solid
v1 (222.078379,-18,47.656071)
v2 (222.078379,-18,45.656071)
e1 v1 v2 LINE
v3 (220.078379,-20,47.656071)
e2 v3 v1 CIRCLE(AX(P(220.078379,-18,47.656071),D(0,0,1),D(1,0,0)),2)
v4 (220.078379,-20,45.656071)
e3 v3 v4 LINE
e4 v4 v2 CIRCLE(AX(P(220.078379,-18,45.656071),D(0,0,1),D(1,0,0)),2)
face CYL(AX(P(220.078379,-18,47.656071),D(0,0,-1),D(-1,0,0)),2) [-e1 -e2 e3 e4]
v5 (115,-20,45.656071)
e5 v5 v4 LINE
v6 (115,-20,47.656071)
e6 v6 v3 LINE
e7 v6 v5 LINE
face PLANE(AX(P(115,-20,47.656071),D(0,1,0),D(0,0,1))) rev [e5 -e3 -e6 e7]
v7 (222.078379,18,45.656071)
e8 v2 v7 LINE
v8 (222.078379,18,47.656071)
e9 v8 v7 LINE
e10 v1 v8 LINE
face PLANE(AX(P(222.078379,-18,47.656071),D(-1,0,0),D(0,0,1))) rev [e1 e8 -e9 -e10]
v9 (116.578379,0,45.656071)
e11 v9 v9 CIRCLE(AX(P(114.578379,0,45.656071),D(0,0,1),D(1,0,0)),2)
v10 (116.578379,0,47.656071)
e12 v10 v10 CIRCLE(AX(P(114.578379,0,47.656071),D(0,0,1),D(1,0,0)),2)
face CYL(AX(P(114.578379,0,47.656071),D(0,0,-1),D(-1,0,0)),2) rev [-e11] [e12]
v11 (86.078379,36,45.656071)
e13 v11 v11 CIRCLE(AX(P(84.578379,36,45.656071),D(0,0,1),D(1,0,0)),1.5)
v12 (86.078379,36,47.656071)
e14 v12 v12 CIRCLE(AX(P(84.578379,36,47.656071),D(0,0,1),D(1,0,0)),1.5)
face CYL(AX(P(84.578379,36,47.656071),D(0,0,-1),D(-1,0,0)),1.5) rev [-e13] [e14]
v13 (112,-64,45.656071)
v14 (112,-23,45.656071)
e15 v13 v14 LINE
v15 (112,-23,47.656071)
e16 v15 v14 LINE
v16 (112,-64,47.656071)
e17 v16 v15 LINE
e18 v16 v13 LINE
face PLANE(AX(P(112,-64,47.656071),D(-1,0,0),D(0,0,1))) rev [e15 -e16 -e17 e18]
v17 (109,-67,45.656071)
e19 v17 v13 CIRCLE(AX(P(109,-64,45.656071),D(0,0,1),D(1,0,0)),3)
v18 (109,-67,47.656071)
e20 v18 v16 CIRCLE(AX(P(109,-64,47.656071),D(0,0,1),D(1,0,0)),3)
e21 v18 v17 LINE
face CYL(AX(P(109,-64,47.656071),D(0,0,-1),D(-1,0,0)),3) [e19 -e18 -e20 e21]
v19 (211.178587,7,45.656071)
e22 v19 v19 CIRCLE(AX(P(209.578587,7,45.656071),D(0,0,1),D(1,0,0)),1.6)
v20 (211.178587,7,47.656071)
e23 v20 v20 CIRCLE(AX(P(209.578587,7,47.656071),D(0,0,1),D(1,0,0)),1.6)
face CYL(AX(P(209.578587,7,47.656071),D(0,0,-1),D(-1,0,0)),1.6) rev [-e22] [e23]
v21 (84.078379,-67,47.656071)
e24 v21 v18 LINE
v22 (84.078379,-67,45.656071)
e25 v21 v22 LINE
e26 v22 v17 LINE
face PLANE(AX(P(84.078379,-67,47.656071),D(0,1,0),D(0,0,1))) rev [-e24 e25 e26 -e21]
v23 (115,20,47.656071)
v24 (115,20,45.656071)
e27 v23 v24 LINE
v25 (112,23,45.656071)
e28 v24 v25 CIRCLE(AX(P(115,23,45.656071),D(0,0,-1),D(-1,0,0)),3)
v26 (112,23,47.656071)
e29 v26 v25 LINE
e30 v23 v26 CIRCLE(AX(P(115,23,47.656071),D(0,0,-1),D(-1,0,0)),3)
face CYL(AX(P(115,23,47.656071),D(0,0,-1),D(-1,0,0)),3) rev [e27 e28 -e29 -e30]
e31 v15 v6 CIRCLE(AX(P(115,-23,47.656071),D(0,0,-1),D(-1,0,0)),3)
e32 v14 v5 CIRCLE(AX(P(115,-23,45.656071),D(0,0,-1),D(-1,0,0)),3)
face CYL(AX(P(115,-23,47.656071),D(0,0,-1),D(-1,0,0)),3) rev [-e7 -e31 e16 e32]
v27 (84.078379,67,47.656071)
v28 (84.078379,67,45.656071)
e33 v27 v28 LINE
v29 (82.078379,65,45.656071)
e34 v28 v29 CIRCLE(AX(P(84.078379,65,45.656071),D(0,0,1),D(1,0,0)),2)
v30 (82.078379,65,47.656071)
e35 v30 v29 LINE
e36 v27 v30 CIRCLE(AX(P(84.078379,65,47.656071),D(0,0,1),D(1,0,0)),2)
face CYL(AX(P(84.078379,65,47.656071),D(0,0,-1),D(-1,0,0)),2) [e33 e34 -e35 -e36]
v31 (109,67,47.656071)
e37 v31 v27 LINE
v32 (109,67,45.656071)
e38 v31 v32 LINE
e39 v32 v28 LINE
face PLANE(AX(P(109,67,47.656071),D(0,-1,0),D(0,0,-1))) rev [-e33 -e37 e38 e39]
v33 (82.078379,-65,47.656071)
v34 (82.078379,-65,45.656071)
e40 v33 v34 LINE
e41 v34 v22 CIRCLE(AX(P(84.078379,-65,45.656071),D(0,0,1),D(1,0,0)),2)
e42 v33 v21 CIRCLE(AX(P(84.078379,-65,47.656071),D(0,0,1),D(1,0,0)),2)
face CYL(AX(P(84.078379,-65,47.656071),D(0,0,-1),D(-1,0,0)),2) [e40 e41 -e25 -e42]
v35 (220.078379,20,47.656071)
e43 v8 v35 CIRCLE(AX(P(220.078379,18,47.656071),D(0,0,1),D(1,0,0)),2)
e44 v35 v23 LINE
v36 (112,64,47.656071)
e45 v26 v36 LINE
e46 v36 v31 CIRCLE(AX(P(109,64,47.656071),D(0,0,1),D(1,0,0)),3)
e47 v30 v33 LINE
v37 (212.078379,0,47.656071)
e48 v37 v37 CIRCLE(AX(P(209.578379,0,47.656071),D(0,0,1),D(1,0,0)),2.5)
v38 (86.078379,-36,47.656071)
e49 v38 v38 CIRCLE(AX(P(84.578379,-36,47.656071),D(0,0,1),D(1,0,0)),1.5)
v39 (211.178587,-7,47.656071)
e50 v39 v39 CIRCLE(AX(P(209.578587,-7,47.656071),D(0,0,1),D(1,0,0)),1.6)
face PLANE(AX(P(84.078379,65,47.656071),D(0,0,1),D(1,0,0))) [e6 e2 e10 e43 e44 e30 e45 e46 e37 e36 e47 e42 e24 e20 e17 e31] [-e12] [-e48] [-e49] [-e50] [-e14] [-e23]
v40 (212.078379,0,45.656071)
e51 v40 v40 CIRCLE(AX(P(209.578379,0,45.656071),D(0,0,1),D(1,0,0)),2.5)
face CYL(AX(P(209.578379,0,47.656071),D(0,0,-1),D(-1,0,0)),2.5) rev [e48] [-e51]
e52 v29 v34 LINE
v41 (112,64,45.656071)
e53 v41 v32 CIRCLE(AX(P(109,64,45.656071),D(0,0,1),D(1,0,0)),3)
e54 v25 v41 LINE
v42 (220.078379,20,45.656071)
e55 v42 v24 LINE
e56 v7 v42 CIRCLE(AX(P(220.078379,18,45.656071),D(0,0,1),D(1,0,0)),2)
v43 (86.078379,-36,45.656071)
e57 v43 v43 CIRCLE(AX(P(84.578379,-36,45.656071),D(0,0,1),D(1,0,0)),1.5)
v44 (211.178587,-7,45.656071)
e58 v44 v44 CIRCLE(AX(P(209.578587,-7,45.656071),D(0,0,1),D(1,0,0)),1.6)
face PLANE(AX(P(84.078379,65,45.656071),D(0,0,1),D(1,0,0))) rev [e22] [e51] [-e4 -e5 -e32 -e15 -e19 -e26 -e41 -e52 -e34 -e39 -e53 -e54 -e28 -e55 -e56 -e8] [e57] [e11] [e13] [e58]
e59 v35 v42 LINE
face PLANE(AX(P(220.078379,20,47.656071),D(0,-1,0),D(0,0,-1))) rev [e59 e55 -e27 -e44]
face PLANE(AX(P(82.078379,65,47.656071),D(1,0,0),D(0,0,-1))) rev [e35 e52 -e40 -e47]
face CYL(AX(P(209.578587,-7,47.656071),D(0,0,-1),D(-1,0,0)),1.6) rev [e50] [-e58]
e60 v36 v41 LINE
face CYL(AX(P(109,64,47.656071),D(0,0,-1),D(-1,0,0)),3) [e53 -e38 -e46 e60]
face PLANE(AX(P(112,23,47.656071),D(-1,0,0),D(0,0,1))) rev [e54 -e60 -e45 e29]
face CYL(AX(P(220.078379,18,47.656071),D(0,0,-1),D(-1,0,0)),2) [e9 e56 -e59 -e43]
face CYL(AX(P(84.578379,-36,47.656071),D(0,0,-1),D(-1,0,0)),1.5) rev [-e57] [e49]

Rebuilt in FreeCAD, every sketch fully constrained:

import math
import FreeCAD as App
import Part
import Sketcher
from FreeCAD import Vector

doc = App.newDocument("Part")
body = doc.addObject("PartDesign::Body", "Body")

sketch1 = body.newObject("Sketcher::SketchObject", "Sketch")
sketch1.AttachmentSupport = (doc.getObject("XY_Plane"), [""])
sketch1.MapMode = "FlatFace"
sketch1.AttachmentOffset = App.Placement(Vector(0, 0, 45.656071), App.Rotation())
sketch1.addGeometry(Part.LineSegment(Vector(82.078379, 65, 0), Vector(82.078379, -65, 0)), False)
sketch1.addGeometry(Part.ArcOfCircle(Part.Circle(Vector(84.078379, -65, 0), Vector(0, 0, 1), 2), math.radians(-180), math.radians(-90)), False)
sketch1.addGeometry(Part.LineSegment(Vector(84.078379, -67, 0), Vector(109, -67, 0)), False)
sketch1.addGeometry(Part.ArcOfCircle(Part.Circle(Vector(109, -64, 0), Vector(0, 0, 1), 3), math.radians(-90), math.radians(0)), False)
sketch1.addGeometry(Part.LineSegment(Vector(112, -64, 0), Vector(112, -23, 0)), False)
sketch1.addGeometry(Part.ArcOfCircle(Part.Circle(Vector(115, -23, 0), Vector(0, 0, 1), 3), math.radians(90), math.radians(180)), False)
sketch1.addGeometry(Part.LineSegment(Vector(115, -20, 0), Vector(220.078379, -20, 0)), False)
sketch1.addGeometry(Part.ArcOfCircle(Part.Circle(Vector(220.078379, -18, 0), Vector(0, 0, 1), 2), math.radians(-90), math.radians(0)), False)
sketch1.addGeometry(Part.LineSegment(Vector(222.078379, -18, 0), Vector(222.078379, 18, 0)), False)
sketch1.addGeometry(Part.ArcOfCircle(Part.Circle(Vector(220.078379, 18, 0), Vector(0, 0, 1), 2), math.radians(0), math.radians(90)), False)
sketch1.addGeometry(Part.LineSegment(Vector(220.078379, 20, 0), Vector(115, 20, 0)), False)
sketch1.addGeometry(Part.ArcOfCircle(Part.Circle(Vector(115, 23, 0), Vector(0, 0, 1), 3), math.radians(180), math.radians(270)), False)
sketch1.addGeometry(Part.LineSegment(Vector(112, 23, 0), Vector(112, 64, 0)), False)
sketch1.addGeometry(Part.ArcOfCircle(Part.Circle(Vector(109, 64, 0), Vector(0, 0, 1), 3), math.radians(0), math.radians(90)), False)
sketch1.addGeometry(Part.LineSegment(Vector(109, 67, 0), Vector(84.078379, 67, 0)), False)
sketch1.addGeometry(Part.ArcOfCircle(Part.Circle(Vector(84.078379, 65, 0), Vector(0, 0, 1), 2), math.radians(90), math.radians(180)), False)
sketch1.addConstraint(Sketcher.Constraint("Tangent", 0, 2, 1, 1))
sketch1.addConstraint(Sketcher.Constraint("Tangent", 1, 2, 2, 1))
sketch1.addConstraint(Sketcher.Constraint("Tangent", 2, 2, 3, 1))
sketch1.addConstraint(Sketcher.Constraint("Tangent", 3, 2, 4, 1))
sketch1.addConstraint(Sketcher.Constraint("Tangent", 4, 2, 5, 2))
sketch1.addConstraint(Sketcher.Constraint("Tangent", 5, 1, 6, 1))
sketch1.addConstraint(Sketcher.Constraint("Tangent", 6, 2, 7, 1))
sketch1.addConstraint(Sketcher.Constraint("Tangent", 7, 2, 8, 1))
sketch1.addConstraint(Sketcher.Constraint("Tangent", 8, 2, 9, 1))
sketch1.addConstraint(Sketcher.Constraint("Tangent", 9, 2, 10, 1))
sketch1.addConstraint(Sketcher.Constraint("Tangent", 10, 2, 11, 2))
sketch1.addConstraint(Sketcher.Constraint("Tangent", 11, 1, 12, 1))
sketch1.addConstraint(Sketcher.Constraint("Tangent", 12, 2, 13, 1))
sketch1.addConstraint(Sketcher.Constraint("Tangent", 13, 2, 14, 1))
sketch1.addConstraint(Sketcher.Constraint("Tangent", 14, 2, 15, 1))
sketch1.addConstraint(Sketcher.Constraint("Tangent", 15, 2, 0, 1))
sketch1.addConstraint(Sketcher.Constraint("Vertical", 0))
sketch1.addConstraint(Sketcher.Constraint("Horizontal", 2))
sketch1.addConstraint(Sketcher.Constraint("Vertical", 4))
sketch1.addConstraint(Sketcher.Constraint("Horizontal", 6))
sketch1.addConstraint(Sketcher.Constraint("Vertical", 8))
sketch1.addConstraint(Sketcher.Constraint("Horizontal", 10))
sketch1.addConstraint(Sketcher.Constraint("Vertical", 12))
sketch1.addConstraint(Sketcher.Constraint("Horizontal", 14))
sketch1.addConstraint(Sketcher.Constraint("Equal", 3, 5))
sketch1.addConstraint(Sketcher.Constraint("Equal", 1, 7))
sketch1.addConstraint(Sketcher.Constraint("Equal", 7, 9))
sketch1.addConstraint(Sketcher.Constraint("Equal", 5, 11))
sketch1.addConstraint(Sketcher.Constraint("Equal", 11, 13))
sketch1.addConstraint(Sketcher.Constraint("Equal", 9, 15))
sketch1.addConstraint(Sketcher.Constraint("Symmetric", 5, 3, 11, 3, -1))
sketch1.addConstraint(Sketcher.Constraint("Equal", 4, 12))
sketch1.addConstraint(Sketcher.Constraint("Radius", 1, 2.0))
sketch1.addConstraint(Sketcher.Constraint("Radius", 3, 3.0))
sketch1.addConstraint(Sketcher.Constraint("DistanceY", 0, 2, 0, 1, 130.0))
sketch1.addConstraint(Sketcher.Constraint("DistanceY", 4, 1, 4, 2, 41.0))
sketch1.addConstraint(Sketcher.Constraint("DistanceX", -1, 1, 3, 3, 109.0))
sketch1.addConstraint(Sketcher.Constraint("DistanceX", 1, 3, 7, 3, 136.0))
sketch1.addConstraint(Sketcher.Constraint("DistanceX", 2, 1, 2, 2, 24.921621))
pad1 = body.newObject("PartDesign::Pad", "Pad")
pad1.Profile = sketch1
pad1.Length = 2

sketch2 = body.newObject("Sketcher::SketchObject", "Sketch001")
sketch2.AttachmentSupport = (doc.getObject("XY_Plane"), [""])
sketch2.MapMode = "FlatFace"
sketch2.AttachmentOffset = App.Placement(Vector(0, 0, 45.656071), App.Rotation())
sketch2.addGeometry(Part.Circle(Vector(209.578379, 0, 0), Vector(0, 0, 1), 2.5), False)
sketch2.addGeometry(Part.Circle(Vector(114.578379, 0, 0), Vector(0, 0, 1), 2), False)
sketch2.addGeometry(Part.Circle(Vector(84.578379, -36, 0), Vector(0, 0, 1), 1.5), False)
sketch2.addGeometry(Part.Circle(Vector(84.578379, 36, 0), Vector(0, 0, 1), 1.5), False)
sketch2.addConstraint(Sketcher.Constraint("Equal", 2, 3))
sketch2.addConstraint(Sketcher.Constraint("Symmetric", 2, 3, 3, 3, -1))
sketch2.addConstraint(Sketcher.Constraint("PointOnObject", 0, 3, -1))
sketch2.addConstraint(Sketcher.Constraint("PointOnObject", 1, 3, -1))
sketch2.addConstraint(Sketcher.Constraint("Diameter", 0, 5.0))
sketch2.addConstraint(Sketcher.Constraint("Diameter", 1, 4.0))
sketch2.addConstraint(Sketcher.Constraint("Diameter", 2, 3.0))
sketch2.addConstraint(Sketcher.Constraint("DistanceY", 2, 3, -1, 1, 36.0))
sketch2.addConstraint(Sketcher.Constraint("DistanceX", 1, 3, 0, 3, 95.0))
sketch2.addConstraint(Sketcher.Constraint("DistanceX", 2, 3, 1, 3, 30.0))
sketch2.addConstraint(Sketcher.Constraint("DistanceX", -1, 1, 0, 3, 209.578379))
pocket1 = body.newObject("PartDesign::Pocket", "Pocket")
pocket1.Profile = sketch2
pocket1.Length = 2
pocket1.Reversed = True

sketch3 = body.newObject("Sketcher::SketchObject", "Sketch002")
sketch3.AttachmentSupport = (doc.getObject("XY_Plane"), [""])
sketch3.MapMode = "FlatFace"
sketch3.AttachmentOffset = App.Placement(Vector(0, 0, 45.656071), App.Rotation())
sketch3.addGeometry(Part.Circle(Vector(209.578587, -7, 0), Vector(0, 0, 1), 1.6), False)
sketch3.addGeometry(Part.Circle(Vector(209.578587, 7, 0), Vector(0, 0, 1), 1.6), False)
sketch3.addConstraint(Sketcher.Constraint("Equal", 0, 1))
sketch3.addConstraint(Sketcher.Constraint("Symmetric", 0, 3, 1, 3, -1))
sketch3.addConstraint(Sketcher.Constraint("Diameter", 0, 3.2))
sketch3.addConstraint(Sketcher.Constraint("DistanceY", 0, 3, -1, 1, 7.0))
sketch3.addConstraint(Sketcher.Constraint("DistanceX", -1, 1, 0, 3, 209.578587))
pocket2 = body.newObject("PartDesign::Pocket", "Pocket001")
pocket2.Profile = sketch3
pocket2.Length = 2
pocket2.Reversed = True

doc.recompute()
